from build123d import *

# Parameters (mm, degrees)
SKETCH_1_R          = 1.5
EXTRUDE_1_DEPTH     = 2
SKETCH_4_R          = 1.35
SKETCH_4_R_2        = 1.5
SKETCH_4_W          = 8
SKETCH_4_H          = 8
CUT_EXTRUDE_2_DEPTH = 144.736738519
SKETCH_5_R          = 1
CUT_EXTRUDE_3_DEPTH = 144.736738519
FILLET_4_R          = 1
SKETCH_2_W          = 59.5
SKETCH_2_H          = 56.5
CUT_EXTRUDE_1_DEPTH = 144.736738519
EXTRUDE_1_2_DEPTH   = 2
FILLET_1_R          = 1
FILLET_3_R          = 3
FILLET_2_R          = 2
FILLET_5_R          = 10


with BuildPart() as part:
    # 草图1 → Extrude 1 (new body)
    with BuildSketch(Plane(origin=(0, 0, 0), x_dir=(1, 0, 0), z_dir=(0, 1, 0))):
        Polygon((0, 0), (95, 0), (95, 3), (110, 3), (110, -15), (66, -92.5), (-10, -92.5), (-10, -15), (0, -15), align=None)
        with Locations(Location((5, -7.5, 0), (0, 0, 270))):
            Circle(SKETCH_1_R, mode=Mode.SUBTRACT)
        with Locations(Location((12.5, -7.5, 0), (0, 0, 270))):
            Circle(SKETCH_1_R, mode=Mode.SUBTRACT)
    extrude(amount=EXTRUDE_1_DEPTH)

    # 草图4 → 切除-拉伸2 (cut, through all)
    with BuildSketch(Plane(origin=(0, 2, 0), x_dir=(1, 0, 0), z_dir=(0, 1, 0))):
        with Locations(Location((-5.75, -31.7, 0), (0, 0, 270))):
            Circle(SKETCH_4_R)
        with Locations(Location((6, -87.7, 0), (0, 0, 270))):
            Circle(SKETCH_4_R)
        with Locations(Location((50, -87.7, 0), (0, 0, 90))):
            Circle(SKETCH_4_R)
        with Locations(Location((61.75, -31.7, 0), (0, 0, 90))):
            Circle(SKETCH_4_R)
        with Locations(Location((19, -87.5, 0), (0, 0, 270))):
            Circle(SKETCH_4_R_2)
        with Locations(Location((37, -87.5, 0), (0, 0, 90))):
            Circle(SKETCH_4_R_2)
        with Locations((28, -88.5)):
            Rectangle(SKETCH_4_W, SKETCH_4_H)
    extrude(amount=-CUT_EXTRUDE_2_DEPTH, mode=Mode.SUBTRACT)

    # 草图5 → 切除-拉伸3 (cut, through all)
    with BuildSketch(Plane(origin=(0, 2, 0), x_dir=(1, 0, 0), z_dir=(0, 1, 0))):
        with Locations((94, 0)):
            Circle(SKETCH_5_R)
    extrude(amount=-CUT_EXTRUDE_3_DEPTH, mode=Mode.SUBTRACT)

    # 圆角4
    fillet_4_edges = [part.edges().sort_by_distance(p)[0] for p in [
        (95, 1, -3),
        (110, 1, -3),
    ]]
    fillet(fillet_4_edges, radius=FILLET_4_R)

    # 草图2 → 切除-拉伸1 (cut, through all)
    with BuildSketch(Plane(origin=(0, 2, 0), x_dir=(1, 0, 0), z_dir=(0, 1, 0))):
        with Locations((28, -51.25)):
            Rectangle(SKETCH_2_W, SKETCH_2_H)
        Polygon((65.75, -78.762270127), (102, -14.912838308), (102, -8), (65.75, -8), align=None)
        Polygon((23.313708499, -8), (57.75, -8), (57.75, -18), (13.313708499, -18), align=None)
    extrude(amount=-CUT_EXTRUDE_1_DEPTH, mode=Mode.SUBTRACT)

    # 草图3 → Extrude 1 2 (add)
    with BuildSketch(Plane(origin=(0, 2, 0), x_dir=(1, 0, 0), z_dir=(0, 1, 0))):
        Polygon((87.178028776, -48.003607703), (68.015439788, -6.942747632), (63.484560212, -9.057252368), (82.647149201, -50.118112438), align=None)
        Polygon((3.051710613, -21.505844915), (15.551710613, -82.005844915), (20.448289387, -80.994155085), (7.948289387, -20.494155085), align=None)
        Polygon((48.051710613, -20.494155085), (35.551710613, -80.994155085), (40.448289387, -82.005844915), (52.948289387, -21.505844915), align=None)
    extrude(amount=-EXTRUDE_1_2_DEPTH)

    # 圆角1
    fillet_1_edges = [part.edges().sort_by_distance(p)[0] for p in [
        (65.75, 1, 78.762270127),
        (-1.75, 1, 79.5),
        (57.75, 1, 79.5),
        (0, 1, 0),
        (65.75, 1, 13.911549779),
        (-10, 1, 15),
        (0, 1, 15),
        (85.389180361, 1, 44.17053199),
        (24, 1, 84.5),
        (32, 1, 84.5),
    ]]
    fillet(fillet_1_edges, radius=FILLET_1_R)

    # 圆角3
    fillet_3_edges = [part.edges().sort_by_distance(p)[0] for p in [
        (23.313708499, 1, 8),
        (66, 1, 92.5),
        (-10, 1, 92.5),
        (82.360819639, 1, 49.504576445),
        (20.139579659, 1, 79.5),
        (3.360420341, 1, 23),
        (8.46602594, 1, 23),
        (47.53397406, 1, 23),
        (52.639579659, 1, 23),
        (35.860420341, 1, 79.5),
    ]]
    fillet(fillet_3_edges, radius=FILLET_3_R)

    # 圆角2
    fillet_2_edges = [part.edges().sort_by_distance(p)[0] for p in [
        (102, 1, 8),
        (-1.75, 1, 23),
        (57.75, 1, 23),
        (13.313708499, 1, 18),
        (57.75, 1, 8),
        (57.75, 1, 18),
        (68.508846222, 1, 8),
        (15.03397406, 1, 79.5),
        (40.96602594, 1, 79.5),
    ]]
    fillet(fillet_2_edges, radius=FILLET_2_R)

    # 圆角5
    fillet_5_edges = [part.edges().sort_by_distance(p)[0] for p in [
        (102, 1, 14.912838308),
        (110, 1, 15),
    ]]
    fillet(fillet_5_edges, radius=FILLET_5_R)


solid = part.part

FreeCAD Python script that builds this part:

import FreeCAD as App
import Part
import Sketcher

V = App.Vector
Q = App.Units.Quantity


def edges_at(feature, points):
    """Names of the edges that pass closest to the given points."""
    edges = feature.Shape.Edges
    near = lambda p: min(range(len(edges)), key=lambda i: edges[i].distToShape(Part.Vertex(*p))[0])
    return sorted({f"Edge{near(p) + 1}" for p in points})


def add_polygon(sketch, points):
    """Adds a closed chain of lines whose ends are joined by coincident constraints."""
    first, n = sketch.GeometryCount, len(points)
    for a, b in zip(points, points[1:] + points[:1]):
        sketch.addGeometry(Part.LineSegment(App.Vector(*a, 0), App.Vector(*b, 0)), False)
    for i in range(n):
        sketch.addConstraint(Sketcher.Constraint("Coincident", first + i, 2, first + (i + 1) % n, 1))

doc = App.newDocument("Part")
body = doc.addObject("PartDesign::Body", "Body")

# Sketch on XZ plane
sketch1 = doc.addObject("Sketcher::SketchObject", "Sketch")
body.addObject(sketch1)
sketch1.AttachmentSupport = (doc.XZ_Plane, [""])
sketch1.MapMode = "FlatFace"
add_polygon(sketch1, [(95, 0), (0, 0), (0, 15), (-10, 15), (-10, 92.5), (66, 92.5), (110, 15), (110, -3), (95, -3)])  # lines 0-8
sketch1.addGeometry(Part.Circle(V(12.5, 7.5, 0), V(0, 0, 1), 1.5), False)  # 9
sketch1.addGeometry(Part.Circle(V(5, 7.5, 0), V(0, 0, 1), 1.5), False)  # 10
sketch1.addConstraint([
    Sketcher.Constraint("Horizontal", 0),
    Sketcher.Constraint("Vertical", 1),
    Sketcher.Constraint("Horizontal", 2),
    Sketcher.Constraint("Vertical", 3),
    Sketcher.Constraint("Horizontal", 4),
    Sketcher.Constraint("Vertical", 6),
    Sketcher.Constraint("Horizontal", 7),
    Sketcher.Constraint("Vertical", 8),
    Sketcher.Constraint("Coincident", 0, 2, -1, 1),
    Sketcher.Constraint("Equal", 9, 10),
    Sketcher.Constraint("Horizontal", 9, 3, 10, 3),
    Sketcher.Constraint("Horizontal", 2, 2, 5, 2),
    Sketcher.Constraint("Equal", 7, 1),
    Sketcher.Constraint("Diameter", 9, 3.0),
    Sketcher.Constraint("DistanceX", 0, 2, 0, 1, 95.0),
    Sketcher.Constraint("DistanceX", 2, 2, 2, 1, 10.0),
    Sketcher.Constraint("DistanceX", 4, 1, 4, 2, 76.0),
    Sketcher.Constraint("DistanceX", 7, 2, 7, 1, 15.0),
    Sketcher.Constraint("DistanceY", 6, 2, 6, 1, 18.0),
    Sketcher.Constraint("DistanceY", 3, 1, 3, 2, 77.5),
    Sketcher.Constraint("DistanceX", -1, 1, 10, 3, 5.0),
    Sketcher.Constraint("DistanceY", 10, 3, 3, 2, 85.0),
    Sketcher.Constraint("DistanceX", -1, 1, 9, 3, 12.5),
])
pad1 = doc.addObject("PartDesign::Pad", "Pad")
body.addObject(pad1)
pad1.Profile = sketch1
pad1.Length = 2
pad1.Reversed = True

# Sketch on XZ plane
sketch2 = doc.addObject("Sketcher::SketchObject", "Sketch001")
body.addObject(sketch2)
sketch2.AttachmentSupport = (doc.XZ_Plane, [""])
sketch2.MapMode = "FlatFace"
sketch2.AttachmentOffset = App.Placement(V(0, 0, -2), App.Rotation())
sketch2.addGeometry(Part.Circle(V(-5.75, 31.7, 0), V(0, 0, 1), 1.35), False)  # 0
sketch2.addGeometry(Part.Circle(V(6, 87.7, 0), V(0, 0, 1), 1.35), False)  # 1
sketch2.addGeometry(Part.Circle(V(50, 87.7, 0), V(0, 0, 1), 1.35), False)  # 2
sketch2.addGeometry(Part.Circle(V(61.75, 31.7, 0), V(0, 0, 1), 1.35), False)  # 3
sketch2.addGeometry(Part.Circle(V(19, 87.5, 0), V(0, 0, 1), 1.5), False)  # 4
sketch2.addGeometry(Part.Circle(V(37, 87.5, 0), V(0, 0, 1), 1.5), False)  # 5
add_polygon(sketch2, [(24, 84.5), (24, 92.5), (32, 92.5), (32, 84.5)])  # lines 6-9
sketch2.addConstraint([
    Sketcher.Constraint("Vertical", 6),
    Sketcher.Constraint("Horizontal", 7),
    Sketcher.Constraint("Vertical", 8),
    Sketcher.Constraint("Horizontal", 9),
    Sketcher.Constraint("Equal", 0, 1),
    Sketcher.Constraint("Equal", 1, 2),
    Sketcher.Constraint("Equal", 2, 3),
    Sketcher.Constraint("Equal", 4, 5),
    Sketcher.Constraint("Horizontal", 1, 3, 2, 3),
    Sketcher.Constraint("Horizontal", 0, 3, 3, 3),
    Sketcher.Constraint("Horizontal", 4, 3, 5, 3),
    Sketcher.Constraint("Equal", 9, 6),
    Sketcher.Constraint("Diameter", 4, 3.0),
    Sketcher.Constraint("Diameter", 0, 2.7),
    Sketcher.Constraint("DistanceX", 7, 1, 7, 2, 8.0),
    Sketcher.Constraint("DistanceX", -1, 1, 1, 3, 6.0),
    Sketcher.Constraint("DistanceX", -1, 1, 2, 3, 50.0),
    Sketcher.Constraint("DistanceX", -1, 1, 4, 3, 19.0),
    Sketcher.Constraint("DistanceX", -1, 1, 5, 3, 37.0),
    Sketcher.Constraint("DistanceX", -1, 1, 6, 2, 24.0),
    Sketcher.Constraint("DistanceY", 0, 3, 1, 3, 56.0),
    Sketcher.Constraint("DistanceY", 4, 3, 6, 2, 5.0),
    Sketcher.Constraint("DistanceY", -1, 1, 0, 3, 31.7),
    Sketcher.Constraint("DistanceY", -1, 1, 4, 3, 87.5),
    Sketcher.Constraint("DistanceX", 0, 3, 3, 3, 67.5),
    Sketcher.Constraint("DistanceX", 0, 3, -1, 1, 5.75),
])
pocket1 = doc.addObject("PartDesign::Pocket", "Pocket")
body.addObject(pocket1)
pocket1.Profile = sketch2
pocket1.Type = "ThroughAll"
pocket1.Reversed = True

# Sketch on XZ plane
sketch3 = doc.addObject("Sketcher::SketchObject", "Sketch002")
body.addObject(sketch3)
sketch3.AttachmentSupport = (doc.XZ_Plane, [""])
sketch3.MapMode = "FlatFace"
sketch3.AttachmentOffset = App.Placement(V(0, 0, -2), App.Rotation())
sketch3.addGeometry(Part.Circle(V(94, 0, 0), V(0, 0, 1), 1), False)
sketch3.addConstraint([
    Sketcher.Constraint("PointOnObject", 0, 3, -1),
    Sketcher.Constraint("Diameter", 0, 2.0),
    Sketcher.Constraint("DistanceX", -1, 1, 0, 3, 94.0),
])
pocket2 = doc.addObject("PartDesign::Pocket", "Pocket001")
body.addObject(pocket2)
pocket2.Profile = sketch3
pocket2.Type = "ThroughAll"
pocket2.Reversed = True
doc.recompute()

fillet = doc.addObject("PartDesign::Fillet", "Fillet")
body.addObject(fillet)
fillet.Base = (pocket2, edges_at(pocket2, [(95, 1, -3), (110, 1, -3)]))
fillet.Radius = 1

# Sketch on XZ plane
sketch4 = doc.addObject("Sketcher::SketchObject", "Sketch003")
body.addObject(sketch4)
sketch4.AttachmentSupport = (doc.XZ_Plane, [""])
sketch4.MapMode = "FlatFace"
sketch4.AttachmentOffset = App.Placement(V(0, 0, -2), App.Rotation())
add_polygon(sketch4, [(-1.75, 23), (-1.75, 79.5), (57.75, 79.5), (57.75, 23)])  # lines 0-3
add_polygon(sketch4, [(65.75, 78.76227), (102, 14.912838), (102, 8), (65.75, 8)])  # lines 4-7
add_polygon(sketch4, [(57.75, 8), (23.313708, 8), (13.313708, 18), (57.75, 18)])  # lines 8-11
sketch4.addConstraint([
    Sketcher.Constraint("Vertical", 0),
    Sketcher.Constraint("Horizontal", 1),
    Sketcher.Constraint("Vertical", 2),
    Sketcher.Constraint("Horizontal", 3),
    Sketcher.Constraint("Vertical", 5),
    Sketcher.Constraint("Horizontal", 6),
    Sketcher.Constraint("Vertical", 7),
    Sketcher.Constraint("Horizontal", 8),
    Sketcher.Constraint("Horizontal", 10),
    Sketcher.Constraint("Vertical", 11),
    Sketcher.Constraint("Horizontal", 6, 2, 8, 2),
    Sketcher.Constraint("Vertical", 2, 2, 10, 2),
    Sketcher.Constraint("DistanceY", 11, 2, 11, 1, 10.0),
    Sketcher.Constraint("Angle", 9, Q("135 deg")),
    Sketcher.Constraint("DistanceX", 1, 1, 1, 2, 59.5),
    Sketcher.Constraint("DistanceY", 0, 1, 0, 2, 56.5),
    Sketcher.Constraint("DistanceY", -1, 1, 2, 2, 23.0),
    Sketcher.Constraint("DistanceX", -1, 1, 4, 2, 102.0),
    Sketcher.Constraint("DistanceY", -1, 1, 5, 2, 8.0),
    Sketcher.Constraint("DistanceX", 2, 2, 6, 2, 8.0),
    Sketcher.Constraint("DistanceX", 6, 2, 6, 1, 36.25),
    Sketcher.Constraint("DistanceX", 8, 2, 8, 1, 34.436292),
    Sketcher.Constraint("DistanceY", 5, 2, 5, 1, 6.912838),
    Sketcher.Constraint("DistanceY", 7, 1, 7, 2, 70.76227),
])
pocket3 = doc.addObject("PartDesign::Pocket", "Pocket002")
body.addObject(pocket3)
pocket3.Profile = sketch4
pocket3.Type = "ThroughAll"
pocket3.Reversed = True

# Sketch on XZ plane
sketch5 = doc.addObject("Sketcher::SketchObject", "Sketch004")
body.addObject(sketch5)
sketch5.AttachmentSupport = (doc.XZ_Plane, [""])
sketch5.MapMode = "FlatFace"
sketch5.AttachmentOffset = App.Placement(V(0, 0, -2), App.Rotation())
add_polygon(sketch5, [(87.178029, 48.003608), (68.01544, 6.942748), (63.48456, 9.057252), (82.647149, 50.118112)])  # lines 0-3
add_polygon(sketch5, [(3.051711, 21.505845), (15.551711, 82.005845), (20.448289, 80.994155), (7.948289, 20.494155)])  # lines 4-7
add_polygon(sketch5, [(48.051711, 20.494155), (35.551711, 80.994155), (40.448289, 82.005845), (52.948289, 21.505845)])  # lines 8-11
sketch5.addConstraint([
    Sketcher.Constraint("Perpendicular", 0, 1),
    Sketcher.Constraint("Perpendicular", 1, 2),
    Sketcher.Constraint("Perpendicular", 2, 3),
    Sketcher.Constraint("Perpendicular", 4, 5),
    Sketcher.Constraint("Perpendicular", 5, 6),
    Sketcher.Constraint("Perpendicular", 6, 7),
    Sketcher.Constraint("Perpendicular", 8, 9),
    Sketcher.Constraint("Perpendicular", 9, 10),
    Sketcher.Constraint("Perpendicular", 10, 11),
    Sketcher.Constraint("Horizontal", 5, 2, 8, 2),
    Sketcher.Constraint("Horizontal", 4, 2, 9, 2),
    Sketcher.Constraint("Horizontal", 7, 2, 10, 2),
    Sketcher.Constraint("Equal", 3, 5),
    Sketcher.Constraint("Equal", 6, 8),
    Sketcher.Constraint("Distance", 1, 5.0),
    Sketcher.Constraint("DistanceX", 4, 2, 8, 2, 20.0),
    Sketcher.Constraint("DistanceX", 6, 2, 10, 2, 45.0),
    Sketcher.Constraint("DistanceY", 6, 2, 5, 2, 60.5),
    Sketcher.Constraint("Distance", 0, 45.312239),
    Sketcher.Constraint("DistanceX", -1, 1, 0, 2, 68.01544),
    Sketcher.Constraint("DistanceX", -1, 1, 1, 2, 63.48456),
    Sketcher.Constraint("DistanceX", -1, 1, 4, 2, 15.551711),
    Sketcher.Constraint("DistanceY", -1, 1, 0, 2, 6.942748),
    Sketcher.Constraint("DistanceY", -1, 1, 4, 2, 82.005845),
])
pad2 = doc.addObject("PartDesign::Pad", "Pad001")
body.addObject(pad2)
pad2.Profile = sketch5
pad2.Length = 2
doc.recompute()

fillet2 = doc.addObject("PartDesign::Fillet", "Fillet001")
body.addObject(fillet2)
fillet2.Base = (pad2, edges_at(pad2, [
    (65.75, 1, 78.762),
    (-1.75, 1, 79.5),
    (57.75, 1, 79.5),
    (0, 1, 0),
    (65.75, 1, 13.912),
    (-10, 1, 15),
    (0, 1, 15),
    (85.389, 1, 44.171),
    (24, 1, 84.5),
    (32, 1, 84.5),
]))
fillet2.Radius = 1
doc.recompute()

fillet3 = doc.addObject("PartDesign::Fillet", "Fillet002")
body.addObject(fillet3)
fillet3.Base = (fillet2, edges_at(fillet2, [
    (23.314, 1, 8),
    (66, 1, 92.5),
    (-10, 1, 92.5),
    (82.361, 1, 49.505),
    (20.14, 1, 79.5),
    (3.36, 1, 23),
    (8.466, 1, 23),
    (47.534, 1, 23),
    (52.64, 1, 23),
    (35.86, 1, 79.5),
]))
fillet3.Radius = 3
doc.recompute()

fillet4 = doc.addObject("PartDesign::Fillet", "Fillet003")
body.addObject(fillet4)
fillet4.Base = (fillet3, edges_at(fillet3, [
    (102, 1, 8),
    (-1.75, 1, 23),
    (57.75, 1, 23),
    (13.314, 1, 18),
    (57.75, 1, 8),
    (57.75, 1, 18),
    (68.509, 1, 8),
    (15.034, 1, 79.5),
    (40.966, 1, 79.5),
]))
fillet4.Radius = 2
doc.recompute()

fillet5 = doc.addObject("PartDesign::Fillet", "Fillet004")
body.addObject(fillet5)
fillet5.Base = (fillet4, edges_at(fillet4, [(102, 1, 14.913), (110, 1, 15)]))
fillet5.Radius = 10

doc.recompute()
